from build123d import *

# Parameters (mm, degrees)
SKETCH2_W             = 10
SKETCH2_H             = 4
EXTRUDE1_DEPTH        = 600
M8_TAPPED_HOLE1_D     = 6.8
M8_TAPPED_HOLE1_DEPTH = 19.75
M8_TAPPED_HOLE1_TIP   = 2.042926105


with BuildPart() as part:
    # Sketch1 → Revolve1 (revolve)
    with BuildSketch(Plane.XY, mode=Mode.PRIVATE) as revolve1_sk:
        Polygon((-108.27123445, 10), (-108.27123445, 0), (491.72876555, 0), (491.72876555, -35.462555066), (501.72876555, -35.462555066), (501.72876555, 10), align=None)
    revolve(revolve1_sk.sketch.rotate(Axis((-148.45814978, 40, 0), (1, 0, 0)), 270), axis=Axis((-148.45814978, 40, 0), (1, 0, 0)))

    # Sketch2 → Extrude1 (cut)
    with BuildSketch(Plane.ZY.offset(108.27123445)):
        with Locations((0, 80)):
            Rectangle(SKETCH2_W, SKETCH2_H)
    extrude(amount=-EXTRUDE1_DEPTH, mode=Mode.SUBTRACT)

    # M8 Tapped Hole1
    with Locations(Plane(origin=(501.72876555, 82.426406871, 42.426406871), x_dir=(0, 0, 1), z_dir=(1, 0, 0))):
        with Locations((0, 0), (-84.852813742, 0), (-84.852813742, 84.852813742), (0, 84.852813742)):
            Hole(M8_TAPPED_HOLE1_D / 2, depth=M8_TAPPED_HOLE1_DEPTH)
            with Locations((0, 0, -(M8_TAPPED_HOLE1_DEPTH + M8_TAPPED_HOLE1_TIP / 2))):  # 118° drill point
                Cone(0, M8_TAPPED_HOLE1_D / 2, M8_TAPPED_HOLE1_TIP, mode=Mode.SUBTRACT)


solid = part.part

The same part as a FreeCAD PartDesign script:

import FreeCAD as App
import Part
import Sketcher
from FreeCAD import Vector

doc = App.newDocument("Part")
body = doc.addObject("PartDesign::Body", "Body")

sketch1 = body.newObject("Sketcher::SketchObject", "Sketch")
sketch1.AttachmentSupport = (doc.getObject("XY_Plane"), [""])
sketch1.MapMode = "FlatFace"
sketch1.addGeometry(Part.LineSegment(Vector(-108.271234, 10, 0), Vector(-108.271234, 0, 0)), False)
sketch1.addGeometry(Part.LineSegment(Vector(-108.271234, 0, 0), Vector(491.728766, 0, 0)), False)
sketch1.addGeometry(Part.LineSegment(Vector(491.728766, 0, 0), Vector(491.728766, -35.462555, 0)), False)
sketch1.addGeometry(Part.LineSegment(Vector(491.728766, -35.462555, 0), Vector(501.728766, -35.462555, 0)), False)
sketch1.addGeometry(Part.LineSegment(Vector(501.728766, -35.462555, 0), Vector(501.728766, 10, 0)), False)
sketch1.addGeometry(Part.LineSegment(Vector(501.728766, 10, 0), Vector(-108.271234, 10, 0)), False)
sketch1.addGeometry(Part.LineSegment(Vector(-108.271234, 40, 0), Vector(501.728766, 40, 0)), True)
sketch1.addConstraint(Sketcher.Constraint("Coincident", 0, 2, 1, 1))
sketch1.addConstraint(Sketcher.Constraint("Coincident", 1, 2, 2, 1))
sketch1.addConstraint(Sketcher.Constraint("Coincident", 2, 2, 3, 1))
sketch1.addConstraint(Sketcher.Constraint("Coincident", 3, 2, 4, 1))
sketch1.addConstraint(Sketcher.Constraint("Coincident", 4, 2, 5, 1))
sketch1.addConstraint(Sketcher.Constraint("Coincident", 5, 2, 0, 1))
sketch1.addConstraint(Sketcher.Constraint("Vertical", 0))
sketch1.addConstraint(Sketcher.Constraint("Horizontal", 1))
sketch1.addConstraint(Sketcher.Constraint("Vertical", 2))
sketch1.addConstraint(Sketcher.Constraint("Horizontal", 3))
sketch1.addConstraint(Sketcher.Constraint("Vertical", 4))
sketch1.addConstraint(Sketcher.Constraint("Horizontal", 5))
sketch1.addConstraint(Sketcher.Constraint("Horizontal", 6))
sketch1.addConstraint(Sketcher.Constraint("PointOnObject", 0, 2, -1))
sketch1.addConstraint(Sketcher.Constraint("Vertical", 5, 2, 6, 1))
sketch1.addConstraint(Sketcher.Constraint("Vertical", 4, 2, 6, 2))
sketch1.addConstraint(Sketcher.Constraint("Equal", 3, 0))
sketch1.addConstraint(Sketcher.Constraint("DistanceX", 1, 1, 1, 2, 600.0))
sketch1.addConstraint(Sketcher.Constraint("DistanceX", 3, 1, 3, 2, 10.0))
sketch1.addConstraint(Sketcher.Constraint("DistanceY", -1, 1, 6, 1, 40.0))
sketch1.addConstraint(Sketcher.Constraint("DistanceY", 2, 2, 2, 1, 35.462555))
sketch1.addConstraint(Sketcher.Constraint("DistanceX", 0, 2, -1, 1, 108.271234))
revolution = body.newObject("PartDesign::Revolution", "Revolution")
revolution.Profile = sketch1
revolution.ReferenceAxis = (sketch1, ["Axis0"])
revolution.Angle = 360

sketch2 = body.newObject("Sketcher::SketchObject", "Sketch001")
sketch2.AttachmentSupport = (doc.getObject("YZ_Plane"), [""])
sketch2.MapMode = "FlatFace"
sketch2.AttachmentOffset = App.Placement(Vector(0, 0, -108.271234), App.Rotation())
sketch2.addGeometry(Part.LineSegment(Vector(82, -5, 0), Vector(78, -5, 0)), False)
sketch2.addGeometry(Part.LineSegment(Vector(78, -5, 0), Vector(78, 5, 0)), False)
sketch2.addGeometry(Part.LineSegment(Vector(78, 5, 0), Vector(82, 5, 0)), False)
sketch2.addGeometry(Part.LineSegment(Vector(82, 5, 0), Vector(82, -5, 0)), False)
sketch2.addConstraint(Sketcher.Constraint("Coincident", 0, 2, 1, 1))
sketch2.addConstraint(Sketcher.Constraint("Coincident", 1, 2, 2, 1))
sketch2.addConstraint(Sketcher.Constraint("Coincident", 2, 2, 3, 1))
sketch2.addConstraint(Sketcher.Constraint("Coincident", 3, 2, 0, 1))
sketch2.addConstraint(Sketcher.Constraint("Horizontal", 0))
sketch2.addConstraint(Sketcher.Constraint("Vertical", 1))
sketch2.addConstraint(Sketcher.Constraint("Horizontal", 2))
sketch2.addConstraint(Sketcher.Constraint("Vertical", 3))
sketch2.addConstraint(Sketcher.Constraint("DistanceX", 0, 2, 0, 1, 4.0))
sketch2.addConstraint(Sketcher.Constraint("DistanceY", 1, 1, 1, 2, 10.0))
sketch2.addConstraint(Sketcher.Constraint("DistanceX", -1, 1, 0, 2, 78.0))
sketch2.addConstraint(Sketcher.Constraint("DistanceY", 0, 2, -1, 1, 5.0))
pocket1 = body.newObject("PartDesign::Pocket", "Pocket")
pocket1.Profile = sketch2
pocket1.Length = 600
pocket1.Reversed = True

sketch3 = body.newObject("Sketcher::SketchObject", "Sketch002")
sketch3.AttachmentSupport = (doc.getObject("YZ_Plane"), [""])
sketch3.MapMode = "FlatFace"
sketch3.AttachmentOffset = App.Placement(Vector(0, 0, 501.728766), App.Rotation())
sketch3.addGeometry(Part.Circle(Vector(82.426407, 42.426407, 0), Vector(0, 0, 1), 3.4), False)
sketch3.addGeometry(Part.Circle(Vector(82.426407, -42.426407, 0), Vector(0, 0, 1), 3.4), False)
sketch3.addGeometry(Part.Circle(Vector(-2.426407, -42.426407, 0), Vector(0, 0, 1), 3.4), False)
sketch3.addGeometry(Part.Circle(Vector(-2.426407, 42.426407, 0), Vector(0, 0, 1), 3.4), False)
sketch3.addConstraint(Sketcher.Constraint("Equal", 0, 1))
sketch3.addConstraint(Sketcher.Constraint("Equal", 1, 2))
sketch3.addConstraint(Sketcher.Constraint("Equal", 2, 3))
sketch3.addConstraint(Sketcher.Constraint("Symmetric", 0, 3, 1, 3, -1))
sketch3.addConstraint(Sketcher.Constraint("Symmetric", 2, 3, 3, 3, -1))
sketch3.addConstraint(Sketcher.Constraint("Horizontal", 1, 3, 2, 3))
sketch3.addConstraint(Sketcher.Constraint("Diameter", 0, 6.8))
sketch3.addConstraint(Sketcher.Constraint("DistanceX", -1, 1, 0, 3, 82.426407))
sketch3.addConstraint(Sketcher.Constraint("DistanceY", -1, 1, 0, 3, 42.426407))
sketch3.addConstraint(Sketcher.Constraint("DistanceX", 2, 3, -1, 1, 2.426407))
doc.recompute()
hole = body.newObject("PartDesign::Hole", "Hole")
hole.Profile = sketch3
hole.ThreadType = "None"
hole.Diameter = 6.8
hole.DepthType = "Dimension"
hole.Depth = 19.75
hole.DrillPoint = "Angled"
hole.DrillPointAngle = 118

doc.recompute()
